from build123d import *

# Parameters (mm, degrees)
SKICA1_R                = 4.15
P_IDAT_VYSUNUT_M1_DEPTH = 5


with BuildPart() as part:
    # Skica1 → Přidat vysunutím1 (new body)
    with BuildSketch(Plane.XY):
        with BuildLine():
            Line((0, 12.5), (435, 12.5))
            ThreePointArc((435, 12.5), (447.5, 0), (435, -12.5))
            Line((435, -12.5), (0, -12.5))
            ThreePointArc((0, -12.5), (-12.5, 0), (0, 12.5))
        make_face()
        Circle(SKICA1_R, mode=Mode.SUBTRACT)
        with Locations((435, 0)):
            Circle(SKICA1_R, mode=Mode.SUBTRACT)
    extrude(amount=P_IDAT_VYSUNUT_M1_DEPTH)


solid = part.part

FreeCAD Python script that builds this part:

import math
import FreeCAD as App
import Part
import Sketcher

V = App.Vector
Q = App.Units.Quantity

doc = App.newDocument("Part")
params = doc.addObject("Spreadsheet::Sheet", "Params")
for row, (alias, value) in enumerate([
    ("sketch1_diameter", "8.3 mm"),
    ("sketch1_radius", "12.5 mm"),
    ("sketch1_width", "435 mm"),
    ("pad1_length", "5 mm"),
], start=1):
    params.set(f"A{row}", alias)
    params.set(f"B{row}", "=" + value)
    params.setAlias(f"B{row}", alias)

body = doc.addObject("PartDesign::Body", "Body")

sketch1 = body.newObject("Sketcher::SketchObject", "Sketch")
sketch1.AttachmentSupport = (doc.getObject("XY_Plane"), [""])
sketch1.MapMode = "FlatFace"
sketch1.addGeometry([
    Part.LineSegment(V(435, 12.5, 0), V(0, 12.5, 0)),
    Part.ArcOfCircle(Part.Circle(V(0, 0, 0), V(0, 0, 1), 12.5), math.radians(90), math.radians(270)),
    Part.LineSegment(V(0, -12.5, 0), V(435, -12.5, 0)),
    Part.ArcOfCircle(Part.Circle(V(435, 0, 0), V(0, 0, 1), 12.5), math.radians(-90), math.radians(90)),
    Part.Circle(V(435, 0, 0), V(0, 0, 1), 4.2),
    Part.Circle(V(0, 0, 0), V(0, 0, 1), 4.2),
], False)
sketch1.addConstraint([
    Sketcher.Constraint("Tangent", 0, 2, 1, 1),
    Sketcher.Constraint("Tangent", 1, 2, 2, 1),
    Sketcher.Constraint("Tangent", 2, 2, 3, 1),
    Sketcher.Constraint("Tangent", 3, 2, 0, 1),
    Sketcher.Constraint("Horizontal", 0),
    Sketcher.Constraint("Horizontal", 2),
    Sketcher.Constraint("Coincident", 1, 3, -1, 1),
    Sketcher.Constraint("Coincident", 5, 3, -1, 1),
    Sketcher.Constraint("Coincident", 4, 3, 3, 3),
    Sketcher.Constraint("Equal", 4, 5),
    Sketcher.Constraint("Diameter", 4, Q("8.3 mm")),
    Sketcher.Constraint("Radius", 1, Q("12.5 mm")),
    Sketcher.Constraint("DistanceX", 0, 2, 0, 1, Q("435 mm")),
])
sketch1.setExpression("Constraints[10]", "Params.sketch1_diameter")
sketch1.setExpression("Constraints[11]", "Params.sketch1_radius")
sketch1.setExpression("Constraints[12]", "Params.sketch1_width")
pad1 = body.newObject("PartDesign::Pad", "Pad")
pad1.Profile = sketch1
pad1.setExpression("Length", "Params.pad1_length")

doc.recompute()
